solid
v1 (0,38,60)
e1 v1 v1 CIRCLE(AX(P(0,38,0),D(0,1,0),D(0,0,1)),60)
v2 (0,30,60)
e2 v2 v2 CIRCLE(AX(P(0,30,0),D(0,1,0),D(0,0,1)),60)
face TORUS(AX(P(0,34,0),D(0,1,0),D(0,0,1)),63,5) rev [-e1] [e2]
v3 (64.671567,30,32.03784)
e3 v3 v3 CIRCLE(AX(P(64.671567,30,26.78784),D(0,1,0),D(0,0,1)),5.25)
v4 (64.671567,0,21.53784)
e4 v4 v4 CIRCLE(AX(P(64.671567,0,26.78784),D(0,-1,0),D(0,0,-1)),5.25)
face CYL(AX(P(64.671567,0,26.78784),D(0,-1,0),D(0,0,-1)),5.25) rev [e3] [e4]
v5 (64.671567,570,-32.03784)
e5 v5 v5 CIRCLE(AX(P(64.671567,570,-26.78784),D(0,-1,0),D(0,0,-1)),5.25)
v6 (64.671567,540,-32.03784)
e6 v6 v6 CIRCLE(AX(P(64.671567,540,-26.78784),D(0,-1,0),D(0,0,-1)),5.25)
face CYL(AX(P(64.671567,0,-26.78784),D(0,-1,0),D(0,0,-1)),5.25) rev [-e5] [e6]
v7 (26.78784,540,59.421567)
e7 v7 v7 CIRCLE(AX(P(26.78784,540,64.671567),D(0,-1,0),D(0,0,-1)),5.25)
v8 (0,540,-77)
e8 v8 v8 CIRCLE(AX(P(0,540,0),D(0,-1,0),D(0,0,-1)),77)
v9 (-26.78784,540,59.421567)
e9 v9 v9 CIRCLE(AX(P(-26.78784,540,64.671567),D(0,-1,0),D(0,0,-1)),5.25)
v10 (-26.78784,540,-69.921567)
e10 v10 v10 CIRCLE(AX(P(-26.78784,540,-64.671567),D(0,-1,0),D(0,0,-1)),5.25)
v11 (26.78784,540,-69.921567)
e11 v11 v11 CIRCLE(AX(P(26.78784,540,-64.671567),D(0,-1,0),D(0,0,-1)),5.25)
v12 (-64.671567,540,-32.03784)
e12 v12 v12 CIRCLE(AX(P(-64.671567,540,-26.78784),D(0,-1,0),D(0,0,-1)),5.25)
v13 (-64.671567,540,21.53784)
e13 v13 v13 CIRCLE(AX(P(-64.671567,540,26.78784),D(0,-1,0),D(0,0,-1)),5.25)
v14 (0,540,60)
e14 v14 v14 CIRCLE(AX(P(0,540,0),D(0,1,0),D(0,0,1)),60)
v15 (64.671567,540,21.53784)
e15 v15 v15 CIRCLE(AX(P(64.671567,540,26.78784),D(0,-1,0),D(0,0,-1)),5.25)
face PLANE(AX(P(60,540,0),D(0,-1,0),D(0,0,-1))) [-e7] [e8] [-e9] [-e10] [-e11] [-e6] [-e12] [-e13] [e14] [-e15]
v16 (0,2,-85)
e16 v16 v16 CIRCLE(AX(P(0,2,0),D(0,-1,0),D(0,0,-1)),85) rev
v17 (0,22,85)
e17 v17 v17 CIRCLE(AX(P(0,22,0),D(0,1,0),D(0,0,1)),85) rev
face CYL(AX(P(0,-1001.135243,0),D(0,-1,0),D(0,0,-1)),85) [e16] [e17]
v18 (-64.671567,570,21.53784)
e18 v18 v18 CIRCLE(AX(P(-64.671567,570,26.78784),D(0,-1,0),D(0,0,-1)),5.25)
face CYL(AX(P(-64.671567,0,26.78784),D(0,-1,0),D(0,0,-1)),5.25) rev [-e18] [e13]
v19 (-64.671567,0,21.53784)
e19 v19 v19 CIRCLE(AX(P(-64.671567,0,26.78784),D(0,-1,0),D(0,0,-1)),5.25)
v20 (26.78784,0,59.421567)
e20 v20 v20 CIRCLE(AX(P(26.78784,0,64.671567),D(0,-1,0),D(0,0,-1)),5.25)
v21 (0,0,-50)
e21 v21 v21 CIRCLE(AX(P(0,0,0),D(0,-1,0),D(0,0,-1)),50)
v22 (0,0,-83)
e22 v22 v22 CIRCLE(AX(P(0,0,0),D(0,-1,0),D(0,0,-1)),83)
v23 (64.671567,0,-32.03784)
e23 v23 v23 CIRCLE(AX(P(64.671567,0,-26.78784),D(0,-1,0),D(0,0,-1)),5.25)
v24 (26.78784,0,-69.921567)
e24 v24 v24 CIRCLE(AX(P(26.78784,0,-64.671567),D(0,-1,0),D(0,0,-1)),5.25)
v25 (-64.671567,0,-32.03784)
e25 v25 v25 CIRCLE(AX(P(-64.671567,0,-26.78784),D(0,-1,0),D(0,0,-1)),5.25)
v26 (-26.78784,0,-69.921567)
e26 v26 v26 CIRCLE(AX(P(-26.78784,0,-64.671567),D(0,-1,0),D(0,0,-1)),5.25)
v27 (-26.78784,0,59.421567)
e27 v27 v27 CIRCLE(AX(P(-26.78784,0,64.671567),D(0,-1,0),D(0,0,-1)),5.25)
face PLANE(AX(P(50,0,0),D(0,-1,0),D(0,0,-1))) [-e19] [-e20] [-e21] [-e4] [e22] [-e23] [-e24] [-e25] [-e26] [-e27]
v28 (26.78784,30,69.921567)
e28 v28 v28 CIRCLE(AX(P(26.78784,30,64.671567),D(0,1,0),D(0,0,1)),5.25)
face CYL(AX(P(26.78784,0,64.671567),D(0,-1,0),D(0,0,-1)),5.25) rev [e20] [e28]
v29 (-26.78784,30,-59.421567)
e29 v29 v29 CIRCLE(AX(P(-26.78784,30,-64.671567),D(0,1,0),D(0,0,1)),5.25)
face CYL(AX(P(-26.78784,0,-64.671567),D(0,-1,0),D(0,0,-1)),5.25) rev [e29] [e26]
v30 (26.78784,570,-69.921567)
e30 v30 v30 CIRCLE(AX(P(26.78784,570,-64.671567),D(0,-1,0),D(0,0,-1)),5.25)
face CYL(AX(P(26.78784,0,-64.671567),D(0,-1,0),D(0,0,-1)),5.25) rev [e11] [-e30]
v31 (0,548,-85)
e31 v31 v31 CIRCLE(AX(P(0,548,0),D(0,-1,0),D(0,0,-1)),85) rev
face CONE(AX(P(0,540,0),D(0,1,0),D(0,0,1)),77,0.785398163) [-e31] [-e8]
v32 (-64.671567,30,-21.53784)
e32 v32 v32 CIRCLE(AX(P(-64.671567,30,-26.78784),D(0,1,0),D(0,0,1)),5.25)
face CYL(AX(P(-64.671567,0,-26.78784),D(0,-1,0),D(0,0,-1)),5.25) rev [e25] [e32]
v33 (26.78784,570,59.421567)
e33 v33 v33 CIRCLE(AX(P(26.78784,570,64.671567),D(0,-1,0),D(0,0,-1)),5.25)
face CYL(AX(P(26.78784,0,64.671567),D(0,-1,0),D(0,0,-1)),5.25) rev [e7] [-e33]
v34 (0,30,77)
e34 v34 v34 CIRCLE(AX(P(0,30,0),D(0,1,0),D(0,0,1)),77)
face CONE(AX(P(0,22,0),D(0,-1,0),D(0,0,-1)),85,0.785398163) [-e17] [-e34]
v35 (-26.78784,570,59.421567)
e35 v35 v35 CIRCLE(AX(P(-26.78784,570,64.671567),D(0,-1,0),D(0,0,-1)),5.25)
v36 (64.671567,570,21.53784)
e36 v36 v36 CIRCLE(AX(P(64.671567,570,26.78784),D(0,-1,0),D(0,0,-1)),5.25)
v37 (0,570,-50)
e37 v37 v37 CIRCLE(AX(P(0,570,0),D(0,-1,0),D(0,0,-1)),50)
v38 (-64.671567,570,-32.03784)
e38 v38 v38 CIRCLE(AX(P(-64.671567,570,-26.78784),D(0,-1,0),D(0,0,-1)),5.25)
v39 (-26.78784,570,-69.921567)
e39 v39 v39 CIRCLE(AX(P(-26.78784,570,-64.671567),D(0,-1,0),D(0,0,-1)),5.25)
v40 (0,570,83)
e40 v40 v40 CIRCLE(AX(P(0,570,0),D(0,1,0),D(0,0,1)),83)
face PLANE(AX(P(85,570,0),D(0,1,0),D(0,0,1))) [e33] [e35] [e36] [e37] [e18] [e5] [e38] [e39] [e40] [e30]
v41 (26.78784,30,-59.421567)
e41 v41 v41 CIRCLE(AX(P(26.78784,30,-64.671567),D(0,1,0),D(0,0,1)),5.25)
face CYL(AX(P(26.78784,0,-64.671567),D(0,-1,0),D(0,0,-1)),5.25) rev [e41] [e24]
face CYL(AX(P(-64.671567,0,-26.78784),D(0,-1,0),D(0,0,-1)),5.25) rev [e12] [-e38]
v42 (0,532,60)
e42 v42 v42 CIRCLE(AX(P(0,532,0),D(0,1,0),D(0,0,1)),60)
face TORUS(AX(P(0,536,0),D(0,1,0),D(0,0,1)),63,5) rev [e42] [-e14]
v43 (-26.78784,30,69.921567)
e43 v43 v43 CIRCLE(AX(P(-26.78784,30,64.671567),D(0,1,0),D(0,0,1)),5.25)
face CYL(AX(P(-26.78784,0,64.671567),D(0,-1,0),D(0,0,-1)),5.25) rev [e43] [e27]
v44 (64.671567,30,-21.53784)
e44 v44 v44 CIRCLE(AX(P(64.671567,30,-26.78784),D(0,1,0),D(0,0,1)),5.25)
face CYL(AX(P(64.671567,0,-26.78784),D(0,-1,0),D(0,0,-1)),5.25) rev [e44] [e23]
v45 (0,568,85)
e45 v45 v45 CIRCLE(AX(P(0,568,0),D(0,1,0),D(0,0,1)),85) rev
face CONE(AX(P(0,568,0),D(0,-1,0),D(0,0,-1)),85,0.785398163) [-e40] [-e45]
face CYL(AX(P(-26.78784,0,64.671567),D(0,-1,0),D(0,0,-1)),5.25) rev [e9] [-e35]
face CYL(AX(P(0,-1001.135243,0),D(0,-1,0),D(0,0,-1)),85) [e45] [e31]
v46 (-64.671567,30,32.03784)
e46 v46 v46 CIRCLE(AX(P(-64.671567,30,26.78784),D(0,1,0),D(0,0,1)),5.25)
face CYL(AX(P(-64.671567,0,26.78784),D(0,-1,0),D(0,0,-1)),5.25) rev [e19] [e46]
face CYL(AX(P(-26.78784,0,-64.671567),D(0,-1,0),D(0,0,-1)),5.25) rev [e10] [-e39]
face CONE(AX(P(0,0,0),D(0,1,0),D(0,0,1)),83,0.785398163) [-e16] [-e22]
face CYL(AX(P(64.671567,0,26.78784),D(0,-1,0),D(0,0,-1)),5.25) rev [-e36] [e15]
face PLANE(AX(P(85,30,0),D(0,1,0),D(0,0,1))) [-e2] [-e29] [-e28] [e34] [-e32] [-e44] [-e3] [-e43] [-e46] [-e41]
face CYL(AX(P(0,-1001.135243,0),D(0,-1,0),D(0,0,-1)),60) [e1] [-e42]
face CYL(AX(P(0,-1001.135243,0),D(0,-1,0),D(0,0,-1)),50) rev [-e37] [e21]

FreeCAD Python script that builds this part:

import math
import FreeCAD as App
import Part
import Sketcher


def edges_at(feature, points):
    """Names of the edges that pass closest to the given points."""
    edges = feature.Shape.Edges
    near = lambda p: min(range(len(edges)), key=lambda i: edges[i].distToShape(Part.Vertex(*p))[0])
    return sorted({f"Edge{near(p) + 1}" for p in points})


def add_polygon(sketch, points):
    """Adds a closed chain of lines whose ends are joined by coincident constraints."""
    first, n = sketch.GeometryCount, len(points)
    for a, b in zip(points, points[1:] + points[:1]):
        sketch.addGeometry(Part.LineSegment(App.Vector(*a, 0), App.Vector(*b, 0)), False)
    for i in range(n):
        sketch.addConstraint(Sketcher.Constraint("Coincident", first + i, 2, first + (i + 1) % n, 1))

doc = App.newDocument("Part")
body = doc.addObject("PartDesign::Body", "Body")

sketch1 = body.newObject("Sketcher::SketchObject", "Sketch")
sketch1.AttachmentSupport = (doc.getObject("XY_Plane"), [""])
sketch1.MapMode = "FlatFace"
add_polygon(sketch1, [(50, 0), (85, 0), (85, 30), (60, 30), (60, 540), (85, 540), (85, 570), (50, 570)])
sketch1.addConstraint(Sketcher.Constraint("Horizontal", 0))
sketch1.addConstraint(Sketcher.Constraint("Vertical", 1))
sketch1.addConstraint(Sketcher.Constraint("Horizontal", 2))
sketch1.addConstraint(Sketcher.Constraint("Vertical", 3))
sketch1.addConstraint(Sketcher.Constraint("Horizontal", 4))
sketch1.addConstraint(Sketcher.Constraint("Vertical", 5))
sketch1.addConstraint(Sketcher.Constraint("Horizontal", 6))
sketch1.addConstraint(Sketcher.Constraint("Vertical", 7))
sketch1.addConstraint(Sketcher.Constraint("PointOnObject", 0, 2, -1))
sketch1.addConstraint(Sketcher.Constraint("Vertical", 1, 2, 4, 2))
sketch1.addConstraint(Sketcher.Constraint("Equal", 1, 5))
sketch1.addConstraint(Sketcher.Constraint("DistanceX", 0, 1, 0, 2, 35.0))
sketch1.addConstraint(Sketcher.Constraint("DistanceX", 2, 2, 2, 1, 25.0))
sketch1.addConstraint(Sketcher.Constraint("DistanceY", 1, 1, 1, 2, 30.0))
sketch1.addConstraint(Sketcher.Constraint("DistanceY", 3, 1, 3, 2, 510.0))
sketch1.addConstraint(Sketcher.Constraint("DistanceX", -1, 1, 0, 2, 85.0))
revolution = body.newObject("PartDesign::Revolution", "Revolution")
revolution.Profile = sketch1
revolution.ReferenceAxis = (sketch1, ["V_Axis"])
revolution.Angle = 360

sketch2 = body.newObject("Sketcher::SketchObject", "Sketch001")
sketch2.AttachmentSupport = (doc.getObject("XY_Plane"), [""])
sketch2.MapMode = "FlatFace"
sketch2.addGeometry(Part.LineSegment(App.Vector(60, 532, 0), App.Vector(60, 540, 0)), False)
sketch2.addGeometry(Part.ArcOfCircle(Part.Circle(App.Vector(63, 536, 0), App.Vector(0, 0, 1), 5), math.radians(127), math.radians(233)), False)
sketch2.addGeometry(Part.LineSegment(App.Vector(60, 30, 0), App.Vector(60, 38, 0)), False)
sketch2.addGeometry(Part.ArcOfCircle(Part.Circle(App.Vector(63, 34, 0), App.Vector(0, 0, 1), 5), math.radians(127), math.radians(233)), False)
sketch2.addConstraint(Sketcher.Constraint("Coincident", 0, 1, 1, 2))
sketch2.addConstraint(Sketcher.Constraint("Coincident", 1, 1, 0, 2))
sketch2.addConstraint(Sketcher.Constraint("Coincident", 2, 1, 3, 2))
sketch2.addConstraint(Sketcher.Constraint("Coincident", 3, 1, 2, 2))
sketch2.addConstraint(Sketcher.Constraint("Vertical", 0))
sketch2.addConstraint(Sketcher.Constraint("Vertical", 2))
sketch2.addConstraint(Sketcher.Constraint("Equal", 1, 3))
sketch2.addConstraint(Sketcher.Constraint("Vertical", 1, 3, 3, 3))
sketch2.addConstraint(Sketcher.Constraint("Vertical", 1, 1, 2, 1))
sketch2.addConstraint(Sketcher.Constraint("Radius", 1, 5.0))
sketch2.addConstraint(Sketcher.Constraint("DistanceY", 0, 1, 0, 2, 8.0))
sketch2.addConstraint(Sketcher.Constraint("DistanceX", -1, 1, 1, 3, 63.0))
sketch2.addConstraint(Sketcher.Constraint("DistanceY", -1, 1, 1, 3, 536.0))
sketch2.addConstraint(Sketcher.Constraint("DistanceY", -1, 1, 3, 3, 34.0))
groove = body.newObject("PartDesign::Groove", "Groove")
groove.Profile = sketch2
groove.ReferenceAxis = (sketch2, ["V_Axis"])
groove.Angle = 360

sketch3 = body.newObject("Sketcher::SketchObject", "Sketch002")
sketch3.AttachmentSupport = (doc.getObject("XZ_Plane"), [""])
sketch3.MapMode = "FlatFace"
sketch3.addGeometry(Part.Circle(App.Vector(-65, 27, 0), App.Vector(0, 0, 1), 5), False)
sketch3.addConstraint(Sketcher.Constraint("Diameter", 0, 10.5))
sketch3.addConstraint(Sketcher.Constraint("DistanceY", -1, 1, 0, 3, 26.78784))
sketch3.addConstraint(Sketcher.Constraint("DistanceX", 0, 3, -1, 1, 64.671567))
doc.recompute()
hole = body.newObject("PartDesign::Hole", "Hole")
hole.Profile = sketch3
hole.ThreadType = "None"
hole.Diameter = 10.5
hole.DepthType = "ThroughAll"
doc.recompute()

polarpattern = body.newObject("PartDesign::PolarPattern", "PolarPattern")
polarpattern.Originals = [hole]
polarpattern.Axis = (doc.getObject("Y_Axis"), [""])
polarpattern.Angle = 360
polarpattern.Occurrences = 8
body.Tip = polarpattern
doc.recompute()

chamfer = body.newObject("PartDesign::Chamfer", "Chamfer")
chamfer.Base = (polarpattern, edges_at(polarpattern, [(0, 540, 85), (0, 30, 85)]))
chamfer.Size = 8
doc.recompute()

chamfer2 = body.newObject("PartDesign::Chamfer", "Chamfer001")
chamfer2.Base = (chamfer, edges_at(chamfer, [(0, 570, 85), (0, 0, 85)]))
chamfer2.Size = 2

doc.recompute()
